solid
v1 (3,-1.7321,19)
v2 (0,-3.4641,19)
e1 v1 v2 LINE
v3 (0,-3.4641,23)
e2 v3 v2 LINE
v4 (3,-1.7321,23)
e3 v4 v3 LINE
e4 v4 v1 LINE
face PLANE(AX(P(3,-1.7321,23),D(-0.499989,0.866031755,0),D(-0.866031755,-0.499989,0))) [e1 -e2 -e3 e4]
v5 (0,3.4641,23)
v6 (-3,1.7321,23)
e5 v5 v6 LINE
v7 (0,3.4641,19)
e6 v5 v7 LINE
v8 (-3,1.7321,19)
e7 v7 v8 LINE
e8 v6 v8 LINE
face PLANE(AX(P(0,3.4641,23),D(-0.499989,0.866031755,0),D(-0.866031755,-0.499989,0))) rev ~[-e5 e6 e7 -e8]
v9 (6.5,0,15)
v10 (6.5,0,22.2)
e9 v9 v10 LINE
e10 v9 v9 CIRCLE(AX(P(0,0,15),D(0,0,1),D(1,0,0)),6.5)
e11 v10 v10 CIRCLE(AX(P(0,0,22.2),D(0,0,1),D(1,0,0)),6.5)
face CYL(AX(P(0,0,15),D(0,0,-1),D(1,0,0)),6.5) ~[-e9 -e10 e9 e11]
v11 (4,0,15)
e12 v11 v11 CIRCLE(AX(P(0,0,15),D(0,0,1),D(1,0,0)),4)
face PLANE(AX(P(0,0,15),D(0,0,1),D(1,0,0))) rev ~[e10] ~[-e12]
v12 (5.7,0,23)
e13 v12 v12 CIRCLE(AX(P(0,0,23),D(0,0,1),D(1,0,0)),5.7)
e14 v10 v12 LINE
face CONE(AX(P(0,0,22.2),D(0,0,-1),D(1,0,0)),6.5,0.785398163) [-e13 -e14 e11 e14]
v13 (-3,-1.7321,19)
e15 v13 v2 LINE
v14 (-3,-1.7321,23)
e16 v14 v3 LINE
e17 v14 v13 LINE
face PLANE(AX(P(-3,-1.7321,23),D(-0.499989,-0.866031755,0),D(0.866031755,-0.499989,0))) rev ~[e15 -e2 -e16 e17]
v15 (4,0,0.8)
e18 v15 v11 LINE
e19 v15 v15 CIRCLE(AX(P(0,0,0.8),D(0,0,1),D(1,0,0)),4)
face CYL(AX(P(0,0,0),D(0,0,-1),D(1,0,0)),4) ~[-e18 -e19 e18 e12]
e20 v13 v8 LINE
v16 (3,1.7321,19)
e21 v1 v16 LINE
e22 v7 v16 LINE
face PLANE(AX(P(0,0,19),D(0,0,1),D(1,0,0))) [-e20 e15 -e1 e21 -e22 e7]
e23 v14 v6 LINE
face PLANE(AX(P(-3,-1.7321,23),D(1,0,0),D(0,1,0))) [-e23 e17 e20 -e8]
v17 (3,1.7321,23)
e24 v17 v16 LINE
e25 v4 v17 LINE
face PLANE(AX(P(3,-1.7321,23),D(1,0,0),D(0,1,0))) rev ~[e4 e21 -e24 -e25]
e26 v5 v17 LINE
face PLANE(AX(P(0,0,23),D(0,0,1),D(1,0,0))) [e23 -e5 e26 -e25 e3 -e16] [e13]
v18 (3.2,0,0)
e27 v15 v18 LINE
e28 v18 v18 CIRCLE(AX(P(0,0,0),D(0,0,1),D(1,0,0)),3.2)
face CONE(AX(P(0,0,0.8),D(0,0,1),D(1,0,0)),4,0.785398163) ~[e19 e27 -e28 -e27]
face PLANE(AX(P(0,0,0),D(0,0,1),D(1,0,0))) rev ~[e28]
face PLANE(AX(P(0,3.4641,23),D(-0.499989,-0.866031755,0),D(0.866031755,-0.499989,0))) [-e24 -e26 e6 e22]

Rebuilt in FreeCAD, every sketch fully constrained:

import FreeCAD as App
import Part
import Sketcher

V = App.Vector
Q = App.Units.Quantity


def edges_at(feature, points):
    """Names of the edges that pass closest to the given points."""
    edges = feature.Shape.Edges
    near = lambda p: min(range(len(edges)), key=lambda i: edges[i].distToShape(Part.Vertex(*p))[0])
    return sorted({f"Edge{near(p) + 1}" for p in points})


def add_polygon(sketch, points):
    """Adds a closed chain of lines whose ends are joined by coincident constraints."""
    first, n = sketch.GeometryCount, len(points)
    for a, b in zip(points, points[1:] + points[:1]):
        sketch.addGeometry(Part.LineSegment(App.Vector(*a, 0), App.Vector(*b, 0)), False)
    for i in range(n):
        sketch.addConstraint(Sketcher.Constraint("Coincident", first + i, 2, first + (i + 1) % n, 1))

doc = App.newDocument("Part")
params = doc.addObject("Spreadsheet::Sheet", "Params")
for row, (alias, value) in enumerate([
    ("sketch1_diameter", "8 mm"),
    ("pad1_length", "15 mm"),
    ("sketch2_diameter", "13 mm"),
    ("pad2_length", "8 mm"),
    ("pocket1_length", "4 mm"),
    ("chamfer_size", "0.8 mm"),
], start=1):
    params.set(f"A{row}", alias)
    params.set(f"B{row}", "=" + value)
    params.setAlias(f"B{row}", alias)

body = doc.addObject("PartDesign::Body", "Body")

sketch1 = body.newObject("Sketcher::SketchObject", "Sketch")
sketch1.AttachmentSupport = (doc.getObject("XY_Plane"), [""])
sketch1.MapMode = "FlatFace"
sketch1.addGeometry(Part.Circle(V(0, 0, 0), V(0, 0, 1), 4), False)
sketch1.addConstraint([
    Sketcher.Constraint("Coincident", 0, 3, -1, 1),
    Sketcher.Constraint("Diameter", 0, 8.0),
])
sketch1.setExpression("Constraints[1]", "Params.sketch1_diameter")
pad1 = body.newObject("PartDesign::Pad", "Pad")
pad1.Profile = sketch1
pad1.setExpression("Length", "Params.pad1_length")

sketch2 = body.newObject("Sketcher::SketchObject", "Sketch001")
sketch2.AttachmentSupport = (doc.getObject("XY_Plane"), [""])
sketch2.MapMode = "FlatFace"
sketch2.AttachmentOffset = App.Placement(V(0, 0, 15), App.Rotation())
sketch2.addGeometry(Part.Circle(V(0, 0, 0), V(0, 0, 1), 6), False)
sketch2.addConstraint([
    Sketcher.Constraint("Coincident", 0, 3, -1, 1),
    Sketcher.Constraint("Diameter", 0, 13.0),
])
sketch2.setExpression("Constraints[1]", "Params.sketch2_diameter")
pad2 = body.newObject("PartDesign::Pad", "Pad001")
pad2.Profile = sketch2
pad2.setExpression("Length", "Params.pad2_length")

sketch3 = body.newObject("Sketcher::SketchObject", "Sketch002")
sketch3.AttachmentSupport = (doc.getObject("XY_Plane"), [""])
sketch3.MapMode = "FlatFace"
sketch3.AttachmentOffset = App.Placement(V(0, 0, 23), App.Rotation())
add_polygon(sketch3, [(3, 1.7), (0, 3.5), (-3, 1.7), (-3, -1.7), (0, -3.5), (3, -1.7)])
sketch3.addConstraint([
    Sketcher.Constraint("Vertical", 2),
    Sketcher.Constraint("Vertical", 5),
    Sketcher.Constraint("Symmetric", 0, 2, 3, 2, -1, 1),
    Sketcher.Constraint("Symmetric", 1, 2, 4, 2, -1, 1),
    Sketcher.Constraint("PointOnObject", 0, 2, -2),
    Sketcher.Constraint("Parallel", 0, 3),
    Sketcher.Constraint("Horizontal", 2, 2, 4, 2),
    Sketcher.Constraint("DistanceX", 2, 2, 4, 2, 6.0),
    Sketcher.Constraint("Angle", 0, Q("150.0007 deg")),
    Sketcher.Constraint("DistanceY", 2, 2, 2, 1, 3.4642),
])
pocket1 = body.newObject("PartDesign::Pocket", "Pocket")
pocket1.Profile = sketch3
pocket1.setExpression("Length", "Params.pocket1_length")
doc.recompute()

chamfer = body.newObject("PartDesign::Chamfer", "Chamfer")
chamfer.Base = (pocket1, edges_at(pocket1, [(-6.5, 0, 23), (-4, 0, 0)]))
chamfer.setExpression("Size", "Params.chamfer_size")

doc.recompute()
